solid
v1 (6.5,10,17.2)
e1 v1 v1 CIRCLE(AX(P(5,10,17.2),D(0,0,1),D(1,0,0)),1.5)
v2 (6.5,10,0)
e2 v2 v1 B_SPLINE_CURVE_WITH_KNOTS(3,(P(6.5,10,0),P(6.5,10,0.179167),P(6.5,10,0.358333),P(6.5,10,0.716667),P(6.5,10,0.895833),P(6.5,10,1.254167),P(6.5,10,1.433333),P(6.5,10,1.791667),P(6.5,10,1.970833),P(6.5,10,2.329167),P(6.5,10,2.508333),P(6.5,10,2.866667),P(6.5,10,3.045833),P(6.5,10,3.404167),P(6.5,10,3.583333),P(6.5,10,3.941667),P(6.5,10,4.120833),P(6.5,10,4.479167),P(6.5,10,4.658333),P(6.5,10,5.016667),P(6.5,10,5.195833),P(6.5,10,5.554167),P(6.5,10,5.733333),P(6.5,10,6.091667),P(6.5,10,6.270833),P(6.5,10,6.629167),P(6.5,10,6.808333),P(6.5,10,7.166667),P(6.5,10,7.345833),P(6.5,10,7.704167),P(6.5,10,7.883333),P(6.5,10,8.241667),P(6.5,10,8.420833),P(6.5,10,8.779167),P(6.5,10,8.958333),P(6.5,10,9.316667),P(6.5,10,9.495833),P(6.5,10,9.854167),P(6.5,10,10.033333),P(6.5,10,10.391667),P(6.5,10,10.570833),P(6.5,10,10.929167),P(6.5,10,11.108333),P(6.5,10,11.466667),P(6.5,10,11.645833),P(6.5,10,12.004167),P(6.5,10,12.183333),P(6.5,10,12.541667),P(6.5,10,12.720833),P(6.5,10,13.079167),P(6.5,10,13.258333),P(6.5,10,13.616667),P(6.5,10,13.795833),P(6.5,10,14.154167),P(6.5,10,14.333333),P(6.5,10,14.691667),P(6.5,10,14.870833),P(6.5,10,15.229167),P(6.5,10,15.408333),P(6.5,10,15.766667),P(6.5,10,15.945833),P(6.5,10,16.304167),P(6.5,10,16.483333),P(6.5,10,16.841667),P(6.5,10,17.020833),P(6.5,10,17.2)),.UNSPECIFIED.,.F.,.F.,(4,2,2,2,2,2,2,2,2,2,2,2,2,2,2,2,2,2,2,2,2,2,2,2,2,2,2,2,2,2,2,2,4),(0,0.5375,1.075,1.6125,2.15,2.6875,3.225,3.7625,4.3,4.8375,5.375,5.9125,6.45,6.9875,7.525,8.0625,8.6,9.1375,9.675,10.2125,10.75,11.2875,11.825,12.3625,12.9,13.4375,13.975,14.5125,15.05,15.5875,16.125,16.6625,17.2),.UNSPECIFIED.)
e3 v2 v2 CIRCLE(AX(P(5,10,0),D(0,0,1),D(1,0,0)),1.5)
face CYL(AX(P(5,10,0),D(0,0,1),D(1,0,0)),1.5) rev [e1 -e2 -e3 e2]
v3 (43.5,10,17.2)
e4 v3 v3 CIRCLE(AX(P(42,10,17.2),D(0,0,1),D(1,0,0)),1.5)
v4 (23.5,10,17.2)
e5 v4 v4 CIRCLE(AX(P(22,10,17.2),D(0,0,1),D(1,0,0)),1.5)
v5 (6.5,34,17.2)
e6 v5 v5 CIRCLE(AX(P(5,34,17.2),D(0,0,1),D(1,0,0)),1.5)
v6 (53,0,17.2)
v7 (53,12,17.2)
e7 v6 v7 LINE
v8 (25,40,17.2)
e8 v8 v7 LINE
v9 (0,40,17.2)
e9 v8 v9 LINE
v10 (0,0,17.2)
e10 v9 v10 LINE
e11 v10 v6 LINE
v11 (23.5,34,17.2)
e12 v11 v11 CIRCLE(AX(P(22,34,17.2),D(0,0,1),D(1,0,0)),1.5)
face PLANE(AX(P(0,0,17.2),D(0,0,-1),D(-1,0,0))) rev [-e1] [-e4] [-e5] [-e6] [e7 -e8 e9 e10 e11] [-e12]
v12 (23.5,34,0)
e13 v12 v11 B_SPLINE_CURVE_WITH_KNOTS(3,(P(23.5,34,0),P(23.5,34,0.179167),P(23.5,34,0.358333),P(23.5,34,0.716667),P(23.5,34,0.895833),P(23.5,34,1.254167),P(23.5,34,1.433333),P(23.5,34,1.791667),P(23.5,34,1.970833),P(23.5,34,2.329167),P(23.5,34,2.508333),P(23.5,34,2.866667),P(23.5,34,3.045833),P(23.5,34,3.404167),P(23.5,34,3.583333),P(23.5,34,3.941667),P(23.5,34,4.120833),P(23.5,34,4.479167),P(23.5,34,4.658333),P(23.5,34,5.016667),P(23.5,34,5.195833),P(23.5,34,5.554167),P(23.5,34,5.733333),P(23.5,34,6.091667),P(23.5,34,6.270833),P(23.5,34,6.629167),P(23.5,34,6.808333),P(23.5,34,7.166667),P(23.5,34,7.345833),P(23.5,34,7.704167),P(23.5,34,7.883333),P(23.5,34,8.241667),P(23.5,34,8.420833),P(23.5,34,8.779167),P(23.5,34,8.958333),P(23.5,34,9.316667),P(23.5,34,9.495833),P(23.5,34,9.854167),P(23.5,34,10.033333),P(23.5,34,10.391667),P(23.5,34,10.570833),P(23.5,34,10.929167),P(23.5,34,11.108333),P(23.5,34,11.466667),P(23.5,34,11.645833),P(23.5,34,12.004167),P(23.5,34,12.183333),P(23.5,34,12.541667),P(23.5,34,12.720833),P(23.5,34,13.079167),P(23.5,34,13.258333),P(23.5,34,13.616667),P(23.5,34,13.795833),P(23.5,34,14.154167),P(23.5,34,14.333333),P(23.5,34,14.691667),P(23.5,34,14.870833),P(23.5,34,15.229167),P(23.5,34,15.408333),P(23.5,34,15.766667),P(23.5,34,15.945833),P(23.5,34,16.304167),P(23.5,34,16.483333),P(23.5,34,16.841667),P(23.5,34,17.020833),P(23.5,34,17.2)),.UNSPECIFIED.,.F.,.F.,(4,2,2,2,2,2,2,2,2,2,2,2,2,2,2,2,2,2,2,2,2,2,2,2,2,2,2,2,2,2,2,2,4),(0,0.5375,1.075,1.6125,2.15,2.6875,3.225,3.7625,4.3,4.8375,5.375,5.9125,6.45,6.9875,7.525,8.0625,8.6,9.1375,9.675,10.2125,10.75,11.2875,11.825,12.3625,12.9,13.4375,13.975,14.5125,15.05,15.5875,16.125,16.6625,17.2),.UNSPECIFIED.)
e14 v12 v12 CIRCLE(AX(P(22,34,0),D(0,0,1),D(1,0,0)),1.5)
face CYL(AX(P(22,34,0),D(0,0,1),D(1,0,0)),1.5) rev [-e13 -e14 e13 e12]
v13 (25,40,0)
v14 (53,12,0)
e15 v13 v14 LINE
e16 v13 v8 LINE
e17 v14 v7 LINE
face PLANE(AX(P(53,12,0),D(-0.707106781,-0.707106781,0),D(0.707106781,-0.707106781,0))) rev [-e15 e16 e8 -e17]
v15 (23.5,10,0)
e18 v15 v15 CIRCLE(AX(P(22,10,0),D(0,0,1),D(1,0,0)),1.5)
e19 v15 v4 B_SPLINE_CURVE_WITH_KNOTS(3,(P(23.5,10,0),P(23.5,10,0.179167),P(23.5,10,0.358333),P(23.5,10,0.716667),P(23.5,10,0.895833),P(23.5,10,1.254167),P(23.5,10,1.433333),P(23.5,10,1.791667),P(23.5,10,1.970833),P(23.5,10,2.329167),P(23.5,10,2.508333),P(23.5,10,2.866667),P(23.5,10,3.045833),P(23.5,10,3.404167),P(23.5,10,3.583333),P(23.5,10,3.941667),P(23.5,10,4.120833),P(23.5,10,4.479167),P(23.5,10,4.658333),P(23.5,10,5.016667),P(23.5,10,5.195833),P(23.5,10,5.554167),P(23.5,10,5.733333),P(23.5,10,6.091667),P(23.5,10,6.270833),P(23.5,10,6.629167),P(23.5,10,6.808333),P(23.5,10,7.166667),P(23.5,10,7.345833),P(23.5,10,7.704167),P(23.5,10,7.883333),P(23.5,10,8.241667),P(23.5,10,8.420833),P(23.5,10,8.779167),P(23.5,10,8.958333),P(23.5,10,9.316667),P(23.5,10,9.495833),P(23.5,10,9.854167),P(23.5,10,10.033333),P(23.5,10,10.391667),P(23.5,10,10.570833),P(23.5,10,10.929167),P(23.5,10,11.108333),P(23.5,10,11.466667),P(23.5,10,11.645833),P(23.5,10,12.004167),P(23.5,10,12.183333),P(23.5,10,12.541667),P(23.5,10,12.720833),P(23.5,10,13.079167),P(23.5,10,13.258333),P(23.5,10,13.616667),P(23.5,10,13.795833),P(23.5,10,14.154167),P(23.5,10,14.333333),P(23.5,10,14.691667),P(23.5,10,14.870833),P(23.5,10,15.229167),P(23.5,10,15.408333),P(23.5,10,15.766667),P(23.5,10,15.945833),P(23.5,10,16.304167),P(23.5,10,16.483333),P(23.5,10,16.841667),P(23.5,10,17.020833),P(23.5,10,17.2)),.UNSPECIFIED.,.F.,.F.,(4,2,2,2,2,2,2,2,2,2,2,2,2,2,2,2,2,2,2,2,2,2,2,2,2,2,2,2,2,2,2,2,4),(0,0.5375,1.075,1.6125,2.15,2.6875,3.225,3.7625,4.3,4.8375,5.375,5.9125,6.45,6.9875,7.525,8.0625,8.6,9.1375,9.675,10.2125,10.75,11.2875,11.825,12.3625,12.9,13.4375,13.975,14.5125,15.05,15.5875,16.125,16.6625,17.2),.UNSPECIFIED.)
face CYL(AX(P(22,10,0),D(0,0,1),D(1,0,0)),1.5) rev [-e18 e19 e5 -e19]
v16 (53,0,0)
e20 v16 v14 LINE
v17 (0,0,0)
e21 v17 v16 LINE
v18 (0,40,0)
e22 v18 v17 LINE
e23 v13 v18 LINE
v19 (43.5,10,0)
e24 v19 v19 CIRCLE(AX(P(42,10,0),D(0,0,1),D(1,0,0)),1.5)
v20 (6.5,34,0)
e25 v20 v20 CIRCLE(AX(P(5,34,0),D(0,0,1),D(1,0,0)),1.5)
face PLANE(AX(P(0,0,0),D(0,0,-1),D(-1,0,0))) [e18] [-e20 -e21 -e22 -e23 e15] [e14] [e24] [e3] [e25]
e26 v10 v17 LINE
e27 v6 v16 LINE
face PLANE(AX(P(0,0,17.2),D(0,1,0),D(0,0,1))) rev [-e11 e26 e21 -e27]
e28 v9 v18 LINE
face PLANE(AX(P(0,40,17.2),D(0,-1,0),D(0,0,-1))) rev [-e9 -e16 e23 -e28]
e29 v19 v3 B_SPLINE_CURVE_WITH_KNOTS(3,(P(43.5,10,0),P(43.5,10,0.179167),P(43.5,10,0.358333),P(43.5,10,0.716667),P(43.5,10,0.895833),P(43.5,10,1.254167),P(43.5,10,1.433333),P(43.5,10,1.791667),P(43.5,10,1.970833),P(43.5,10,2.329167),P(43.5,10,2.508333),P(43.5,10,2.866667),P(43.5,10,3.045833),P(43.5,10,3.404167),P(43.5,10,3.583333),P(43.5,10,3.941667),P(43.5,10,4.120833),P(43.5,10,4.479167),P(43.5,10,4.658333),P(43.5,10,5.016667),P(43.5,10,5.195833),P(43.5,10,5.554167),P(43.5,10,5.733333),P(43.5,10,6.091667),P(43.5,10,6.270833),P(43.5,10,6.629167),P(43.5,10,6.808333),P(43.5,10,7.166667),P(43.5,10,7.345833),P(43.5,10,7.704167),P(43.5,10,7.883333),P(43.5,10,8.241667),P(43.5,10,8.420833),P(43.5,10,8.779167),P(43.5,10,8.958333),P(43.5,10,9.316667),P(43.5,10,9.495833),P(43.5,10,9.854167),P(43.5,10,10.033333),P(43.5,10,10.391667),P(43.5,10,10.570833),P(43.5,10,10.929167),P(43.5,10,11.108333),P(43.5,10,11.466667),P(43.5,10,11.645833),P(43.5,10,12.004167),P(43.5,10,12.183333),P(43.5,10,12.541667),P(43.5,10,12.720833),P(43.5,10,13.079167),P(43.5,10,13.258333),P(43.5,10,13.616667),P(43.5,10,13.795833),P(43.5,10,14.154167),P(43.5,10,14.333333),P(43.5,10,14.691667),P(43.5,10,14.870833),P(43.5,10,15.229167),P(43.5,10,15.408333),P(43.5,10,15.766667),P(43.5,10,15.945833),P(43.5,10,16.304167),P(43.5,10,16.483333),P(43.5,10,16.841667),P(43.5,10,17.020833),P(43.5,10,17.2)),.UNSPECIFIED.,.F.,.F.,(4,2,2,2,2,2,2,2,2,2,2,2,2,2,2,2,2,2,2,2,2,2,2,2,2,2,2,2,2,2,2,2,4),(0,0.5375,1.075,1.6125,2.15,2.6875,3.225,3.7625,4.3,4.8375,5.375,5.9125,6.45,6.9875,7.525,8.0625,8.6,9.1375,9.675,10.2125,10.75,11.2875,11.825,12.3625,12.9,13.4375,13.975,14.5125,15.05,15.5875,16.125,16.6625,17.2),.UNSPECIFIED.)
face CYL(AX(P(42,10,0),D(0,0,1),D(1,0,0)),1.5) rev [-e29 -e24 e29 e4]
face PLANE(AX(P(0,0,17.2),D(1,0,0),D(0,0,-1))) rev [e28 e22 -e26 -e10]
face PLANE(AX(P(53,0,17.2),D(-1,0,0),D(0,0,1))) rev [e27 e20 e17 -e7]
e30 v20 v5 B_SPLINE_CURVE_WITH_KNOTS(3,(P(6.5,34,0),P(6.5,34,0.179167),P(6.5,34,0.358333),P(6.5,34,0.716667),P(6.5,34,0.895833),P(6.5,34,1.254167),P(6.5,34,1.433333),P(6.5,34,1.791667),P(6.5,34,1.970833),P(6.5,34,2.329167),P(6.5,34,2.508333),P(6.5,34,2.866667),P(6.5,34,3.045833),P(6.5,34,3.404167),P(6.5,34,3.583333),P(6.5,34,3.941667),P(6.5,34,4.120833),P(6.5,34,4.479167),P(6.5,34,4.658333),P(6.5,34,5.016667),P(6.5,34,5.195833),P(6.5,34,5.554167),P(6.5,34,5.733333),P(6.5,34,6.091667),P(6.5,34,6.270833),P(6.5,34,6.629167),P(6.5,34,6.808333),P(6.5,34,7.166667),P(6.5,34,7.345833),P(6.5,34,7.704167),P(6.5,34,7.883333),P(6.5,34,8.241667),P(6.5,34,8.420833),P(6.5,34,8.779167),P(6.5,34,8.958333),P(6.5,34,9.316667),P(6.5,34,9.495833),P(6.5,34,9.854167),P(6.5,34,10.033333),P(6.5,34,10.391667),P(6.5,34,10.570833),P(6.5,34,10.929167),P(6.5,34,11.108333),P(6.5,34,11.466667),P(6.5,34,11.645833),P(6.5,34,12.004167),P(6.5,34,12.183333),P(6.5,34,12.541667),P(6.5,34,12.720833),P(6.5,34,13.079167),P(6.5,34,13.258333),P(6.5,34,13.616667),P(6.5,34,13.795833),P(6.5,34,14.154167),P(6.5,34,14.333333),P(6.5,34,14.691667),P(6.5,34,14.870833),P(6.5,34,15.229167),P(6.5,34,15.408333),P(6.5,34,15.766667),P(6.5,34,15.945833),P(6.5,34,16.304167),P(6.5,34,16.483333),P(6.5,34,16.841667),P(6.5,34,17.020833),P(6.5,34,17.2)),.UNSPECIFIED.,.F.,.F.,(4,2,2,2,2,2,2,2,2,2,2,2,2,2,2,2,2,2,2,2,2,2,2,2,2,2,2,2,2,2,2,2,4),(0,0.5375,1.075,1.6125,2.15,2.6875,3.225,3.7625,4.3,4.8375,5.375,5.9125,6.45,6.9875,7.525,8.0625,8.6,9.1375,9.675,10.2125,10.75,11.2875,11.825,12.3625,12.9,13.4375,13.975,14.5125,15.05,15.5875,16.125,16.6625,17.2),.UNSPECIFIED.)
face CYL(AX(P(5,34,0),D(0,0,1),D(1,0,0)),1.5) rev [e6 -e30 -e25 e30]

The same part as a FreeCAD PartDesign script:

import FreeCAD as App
import Part
import Sketcher

V = App.Vector


def add_polygon(sketch, points):
    """Adds a closed chain of lines whose ends are joined by coincident constraints."""
    first, n = sketch.GeometryCount, len(points)
    for a, b in zip(points, points[1:] + points[:1]):
        sketch.addGeometry(Part.LineSegment(App.Vector(*a, 0), App.Vector(*b, 0)), False)
    for i in range(n):
        sketch.addConstraint(Sketcher.Constraint("Coincident", first + i, 2, first + (i + 1) % n, 1))

doc = App.newDocument("Part")
params = doc.addObject("Spreadsheet::Sheet", "Params")
for row, (alias, value) in enumerate([
    ("sketch1_width", "53 mm"),
    ("sketch1_height", "40 mm"),
    ("pad1_length", "17.2 mm"),
    ("sketch2_width", "28 mm"),
    ("sketch3_diameter", "3 mm"),
], start=1):
    params.set(f"A{row}", alias)
    params.set(f"B{row}", "=" + value)
    params.setAlias(f"B{row}", alias)

body = doc.addObject("PartDesign::Body", "Body")

# Sketch on XY plane
sketch1 = body.newObject("Sketcher::SketchObject", "Sketch")
sketch1.AttachmentSupport = (doc.getObject("XY_Plane"), [""])
sketch1.MapMode = "FlatFace"
add_polygon(sketch1, [(0, 40), (0, 0), (53, 0), (53, 40)])  # lines 0-3
sketch1.addConstraint([
    Sketcher.Constraint("Vertical", 0),
    Sketcher.Constraint("Horizontal", 1),
    Sketcher.Constraint("Vertical", 2),
    Sketcher.Constraint("Horizontal", 3),
    Sketcher.Constraint("Coincident", 0, 2, -1, 1),
    Sketcher.Constraint("DistanceX", 1, 1, 1, 2, 53.0),
    Sketcher.Constraint("DistanceY", 0, 2, 0, 1, 40.0),
])
sketch1.setExpression("Constraints[9]", "Params.sketch1_width")
sketch1.setExpression("Constraints[10]", "Params.sketch1_height")
pad1 = body.newObject("PartDesign::Pad", "Pad")
pad1.Profile = sketch1
pad1.setExpression("Length", "Params.pad1_length")

# Sketch on XY plane
sketch2 = body.newObject("Sketcher::SketchObject", "Sketch001")
sketch2.AttachmentSupport = (doc.getObject("XY_Plane"), [""])
sketch2.MapMode = "FlatFace"
sketch2.AttachmentOffset = App.Placement(V(0, 0, 17.2), App.Rotation())
add_polygon(sketch2, [(53, 40), (25, 40), (53, 12)])  # lines 0-2
sketch2.addConstraint([
    Sketcher.Constraint("Horizontal", 0),
    Sketcher.Constraint("Vertical", 2),
    Sketcher.Constraint("Equal", 0, 2),
    Sketcher.Constraint("DistanceX", 0, 2, 0, 1, 28.0),
    Sketcher.Constraint("DistanceX", -1, 1, 0, 2, 25.0),
    Sketcher.Constraint("DistanceY", -1, 1, 0, 2, 40.0),
])
sketch2.setExpression("Constraints[6]", "Params.sketch2_width")
pocket1 = body.newObject("PartDesign::Pocket", "Pocket")
pocket1.Profile = sketch2
pocket1.Type = "ThroughAll"

# Sketch on XY plane
sketch3 = body.newObject("Sketcher::SketchObject", "Sketch002")
sketch3.AttachmentSupport = (doc.getObject("XY_Plane"), [""])
sketch3.MapMode = "FlatFace"
sketch3.AttachmentOffset = App.Placement(V(0, 0, 17.2), App.Rotation())
sketch3.addGeometry([
    Part.Circle(V(5, 34, 0), V(0, 0, 1), 1.5),  # 0
    Part.Circle(V(5, 10, 0), V(0, 0, 1), 1.5),  # 1
    Part.Circle(V(22, 34, 0), V(0, 0, 1), 1.5),  # 2
    Part.Circle(V(22, 10, 0), V(0, 0, 1), 1.5),  # 3
    Part.Circle(V(42, 10, 0), V(0, 0, 1), 1.5),  # 4
], False)
sketch3.addConstraint([
    Sketcher.Constraint("Equal", 0, 1),
    Sketcher.Constraint("Equal", 1, 2),
    Sketcher.Constraint("Equal", 2, 3),
    Sketcher.Constraint("Equal", 3, 4),
    Sketcher.Constraint("Horizontal", 0, 3, 2, 3),
    Sketcher.Constraint("Horizontal", 1, 3, 3, 3),
    Sketcher.Constraint("Horizontal", 3, 3, 4, 3),
    Sketcher.Constraint("Vertical", 0, 3, 1, 3),
    Sketcher.Constraint("Vertical", 2, 3, 3, 3),
    Sketcher.Constraint("Diameter", 0, 3.0),
    Sketcher.Constraint("DistanceX", -1, 1, 0, 3, 5.0),
    Sketcher.Constraint("DistanceY", -1, 1, 0, 3, 34.0),
    Sketcher.Constraint("DistanceY", -1, 1, 1, 3, 10.0),
    Sketcher.Constraint("DistanceX", -1, 1, 2, 3, 22.0),
    Sketcher.Constraint("DistanceX", -1, 1, 4, 3, 42.0),
])
sketch3.setExpression("Constraints[9]", "Params.sketch3_diameter")
pocket2 = body.newObject("PartDesign::Pocket", "Pocket001")
pocket2.Profile = sketch3
pocket2.Type = "ThroughAll"

doc.recompute()
